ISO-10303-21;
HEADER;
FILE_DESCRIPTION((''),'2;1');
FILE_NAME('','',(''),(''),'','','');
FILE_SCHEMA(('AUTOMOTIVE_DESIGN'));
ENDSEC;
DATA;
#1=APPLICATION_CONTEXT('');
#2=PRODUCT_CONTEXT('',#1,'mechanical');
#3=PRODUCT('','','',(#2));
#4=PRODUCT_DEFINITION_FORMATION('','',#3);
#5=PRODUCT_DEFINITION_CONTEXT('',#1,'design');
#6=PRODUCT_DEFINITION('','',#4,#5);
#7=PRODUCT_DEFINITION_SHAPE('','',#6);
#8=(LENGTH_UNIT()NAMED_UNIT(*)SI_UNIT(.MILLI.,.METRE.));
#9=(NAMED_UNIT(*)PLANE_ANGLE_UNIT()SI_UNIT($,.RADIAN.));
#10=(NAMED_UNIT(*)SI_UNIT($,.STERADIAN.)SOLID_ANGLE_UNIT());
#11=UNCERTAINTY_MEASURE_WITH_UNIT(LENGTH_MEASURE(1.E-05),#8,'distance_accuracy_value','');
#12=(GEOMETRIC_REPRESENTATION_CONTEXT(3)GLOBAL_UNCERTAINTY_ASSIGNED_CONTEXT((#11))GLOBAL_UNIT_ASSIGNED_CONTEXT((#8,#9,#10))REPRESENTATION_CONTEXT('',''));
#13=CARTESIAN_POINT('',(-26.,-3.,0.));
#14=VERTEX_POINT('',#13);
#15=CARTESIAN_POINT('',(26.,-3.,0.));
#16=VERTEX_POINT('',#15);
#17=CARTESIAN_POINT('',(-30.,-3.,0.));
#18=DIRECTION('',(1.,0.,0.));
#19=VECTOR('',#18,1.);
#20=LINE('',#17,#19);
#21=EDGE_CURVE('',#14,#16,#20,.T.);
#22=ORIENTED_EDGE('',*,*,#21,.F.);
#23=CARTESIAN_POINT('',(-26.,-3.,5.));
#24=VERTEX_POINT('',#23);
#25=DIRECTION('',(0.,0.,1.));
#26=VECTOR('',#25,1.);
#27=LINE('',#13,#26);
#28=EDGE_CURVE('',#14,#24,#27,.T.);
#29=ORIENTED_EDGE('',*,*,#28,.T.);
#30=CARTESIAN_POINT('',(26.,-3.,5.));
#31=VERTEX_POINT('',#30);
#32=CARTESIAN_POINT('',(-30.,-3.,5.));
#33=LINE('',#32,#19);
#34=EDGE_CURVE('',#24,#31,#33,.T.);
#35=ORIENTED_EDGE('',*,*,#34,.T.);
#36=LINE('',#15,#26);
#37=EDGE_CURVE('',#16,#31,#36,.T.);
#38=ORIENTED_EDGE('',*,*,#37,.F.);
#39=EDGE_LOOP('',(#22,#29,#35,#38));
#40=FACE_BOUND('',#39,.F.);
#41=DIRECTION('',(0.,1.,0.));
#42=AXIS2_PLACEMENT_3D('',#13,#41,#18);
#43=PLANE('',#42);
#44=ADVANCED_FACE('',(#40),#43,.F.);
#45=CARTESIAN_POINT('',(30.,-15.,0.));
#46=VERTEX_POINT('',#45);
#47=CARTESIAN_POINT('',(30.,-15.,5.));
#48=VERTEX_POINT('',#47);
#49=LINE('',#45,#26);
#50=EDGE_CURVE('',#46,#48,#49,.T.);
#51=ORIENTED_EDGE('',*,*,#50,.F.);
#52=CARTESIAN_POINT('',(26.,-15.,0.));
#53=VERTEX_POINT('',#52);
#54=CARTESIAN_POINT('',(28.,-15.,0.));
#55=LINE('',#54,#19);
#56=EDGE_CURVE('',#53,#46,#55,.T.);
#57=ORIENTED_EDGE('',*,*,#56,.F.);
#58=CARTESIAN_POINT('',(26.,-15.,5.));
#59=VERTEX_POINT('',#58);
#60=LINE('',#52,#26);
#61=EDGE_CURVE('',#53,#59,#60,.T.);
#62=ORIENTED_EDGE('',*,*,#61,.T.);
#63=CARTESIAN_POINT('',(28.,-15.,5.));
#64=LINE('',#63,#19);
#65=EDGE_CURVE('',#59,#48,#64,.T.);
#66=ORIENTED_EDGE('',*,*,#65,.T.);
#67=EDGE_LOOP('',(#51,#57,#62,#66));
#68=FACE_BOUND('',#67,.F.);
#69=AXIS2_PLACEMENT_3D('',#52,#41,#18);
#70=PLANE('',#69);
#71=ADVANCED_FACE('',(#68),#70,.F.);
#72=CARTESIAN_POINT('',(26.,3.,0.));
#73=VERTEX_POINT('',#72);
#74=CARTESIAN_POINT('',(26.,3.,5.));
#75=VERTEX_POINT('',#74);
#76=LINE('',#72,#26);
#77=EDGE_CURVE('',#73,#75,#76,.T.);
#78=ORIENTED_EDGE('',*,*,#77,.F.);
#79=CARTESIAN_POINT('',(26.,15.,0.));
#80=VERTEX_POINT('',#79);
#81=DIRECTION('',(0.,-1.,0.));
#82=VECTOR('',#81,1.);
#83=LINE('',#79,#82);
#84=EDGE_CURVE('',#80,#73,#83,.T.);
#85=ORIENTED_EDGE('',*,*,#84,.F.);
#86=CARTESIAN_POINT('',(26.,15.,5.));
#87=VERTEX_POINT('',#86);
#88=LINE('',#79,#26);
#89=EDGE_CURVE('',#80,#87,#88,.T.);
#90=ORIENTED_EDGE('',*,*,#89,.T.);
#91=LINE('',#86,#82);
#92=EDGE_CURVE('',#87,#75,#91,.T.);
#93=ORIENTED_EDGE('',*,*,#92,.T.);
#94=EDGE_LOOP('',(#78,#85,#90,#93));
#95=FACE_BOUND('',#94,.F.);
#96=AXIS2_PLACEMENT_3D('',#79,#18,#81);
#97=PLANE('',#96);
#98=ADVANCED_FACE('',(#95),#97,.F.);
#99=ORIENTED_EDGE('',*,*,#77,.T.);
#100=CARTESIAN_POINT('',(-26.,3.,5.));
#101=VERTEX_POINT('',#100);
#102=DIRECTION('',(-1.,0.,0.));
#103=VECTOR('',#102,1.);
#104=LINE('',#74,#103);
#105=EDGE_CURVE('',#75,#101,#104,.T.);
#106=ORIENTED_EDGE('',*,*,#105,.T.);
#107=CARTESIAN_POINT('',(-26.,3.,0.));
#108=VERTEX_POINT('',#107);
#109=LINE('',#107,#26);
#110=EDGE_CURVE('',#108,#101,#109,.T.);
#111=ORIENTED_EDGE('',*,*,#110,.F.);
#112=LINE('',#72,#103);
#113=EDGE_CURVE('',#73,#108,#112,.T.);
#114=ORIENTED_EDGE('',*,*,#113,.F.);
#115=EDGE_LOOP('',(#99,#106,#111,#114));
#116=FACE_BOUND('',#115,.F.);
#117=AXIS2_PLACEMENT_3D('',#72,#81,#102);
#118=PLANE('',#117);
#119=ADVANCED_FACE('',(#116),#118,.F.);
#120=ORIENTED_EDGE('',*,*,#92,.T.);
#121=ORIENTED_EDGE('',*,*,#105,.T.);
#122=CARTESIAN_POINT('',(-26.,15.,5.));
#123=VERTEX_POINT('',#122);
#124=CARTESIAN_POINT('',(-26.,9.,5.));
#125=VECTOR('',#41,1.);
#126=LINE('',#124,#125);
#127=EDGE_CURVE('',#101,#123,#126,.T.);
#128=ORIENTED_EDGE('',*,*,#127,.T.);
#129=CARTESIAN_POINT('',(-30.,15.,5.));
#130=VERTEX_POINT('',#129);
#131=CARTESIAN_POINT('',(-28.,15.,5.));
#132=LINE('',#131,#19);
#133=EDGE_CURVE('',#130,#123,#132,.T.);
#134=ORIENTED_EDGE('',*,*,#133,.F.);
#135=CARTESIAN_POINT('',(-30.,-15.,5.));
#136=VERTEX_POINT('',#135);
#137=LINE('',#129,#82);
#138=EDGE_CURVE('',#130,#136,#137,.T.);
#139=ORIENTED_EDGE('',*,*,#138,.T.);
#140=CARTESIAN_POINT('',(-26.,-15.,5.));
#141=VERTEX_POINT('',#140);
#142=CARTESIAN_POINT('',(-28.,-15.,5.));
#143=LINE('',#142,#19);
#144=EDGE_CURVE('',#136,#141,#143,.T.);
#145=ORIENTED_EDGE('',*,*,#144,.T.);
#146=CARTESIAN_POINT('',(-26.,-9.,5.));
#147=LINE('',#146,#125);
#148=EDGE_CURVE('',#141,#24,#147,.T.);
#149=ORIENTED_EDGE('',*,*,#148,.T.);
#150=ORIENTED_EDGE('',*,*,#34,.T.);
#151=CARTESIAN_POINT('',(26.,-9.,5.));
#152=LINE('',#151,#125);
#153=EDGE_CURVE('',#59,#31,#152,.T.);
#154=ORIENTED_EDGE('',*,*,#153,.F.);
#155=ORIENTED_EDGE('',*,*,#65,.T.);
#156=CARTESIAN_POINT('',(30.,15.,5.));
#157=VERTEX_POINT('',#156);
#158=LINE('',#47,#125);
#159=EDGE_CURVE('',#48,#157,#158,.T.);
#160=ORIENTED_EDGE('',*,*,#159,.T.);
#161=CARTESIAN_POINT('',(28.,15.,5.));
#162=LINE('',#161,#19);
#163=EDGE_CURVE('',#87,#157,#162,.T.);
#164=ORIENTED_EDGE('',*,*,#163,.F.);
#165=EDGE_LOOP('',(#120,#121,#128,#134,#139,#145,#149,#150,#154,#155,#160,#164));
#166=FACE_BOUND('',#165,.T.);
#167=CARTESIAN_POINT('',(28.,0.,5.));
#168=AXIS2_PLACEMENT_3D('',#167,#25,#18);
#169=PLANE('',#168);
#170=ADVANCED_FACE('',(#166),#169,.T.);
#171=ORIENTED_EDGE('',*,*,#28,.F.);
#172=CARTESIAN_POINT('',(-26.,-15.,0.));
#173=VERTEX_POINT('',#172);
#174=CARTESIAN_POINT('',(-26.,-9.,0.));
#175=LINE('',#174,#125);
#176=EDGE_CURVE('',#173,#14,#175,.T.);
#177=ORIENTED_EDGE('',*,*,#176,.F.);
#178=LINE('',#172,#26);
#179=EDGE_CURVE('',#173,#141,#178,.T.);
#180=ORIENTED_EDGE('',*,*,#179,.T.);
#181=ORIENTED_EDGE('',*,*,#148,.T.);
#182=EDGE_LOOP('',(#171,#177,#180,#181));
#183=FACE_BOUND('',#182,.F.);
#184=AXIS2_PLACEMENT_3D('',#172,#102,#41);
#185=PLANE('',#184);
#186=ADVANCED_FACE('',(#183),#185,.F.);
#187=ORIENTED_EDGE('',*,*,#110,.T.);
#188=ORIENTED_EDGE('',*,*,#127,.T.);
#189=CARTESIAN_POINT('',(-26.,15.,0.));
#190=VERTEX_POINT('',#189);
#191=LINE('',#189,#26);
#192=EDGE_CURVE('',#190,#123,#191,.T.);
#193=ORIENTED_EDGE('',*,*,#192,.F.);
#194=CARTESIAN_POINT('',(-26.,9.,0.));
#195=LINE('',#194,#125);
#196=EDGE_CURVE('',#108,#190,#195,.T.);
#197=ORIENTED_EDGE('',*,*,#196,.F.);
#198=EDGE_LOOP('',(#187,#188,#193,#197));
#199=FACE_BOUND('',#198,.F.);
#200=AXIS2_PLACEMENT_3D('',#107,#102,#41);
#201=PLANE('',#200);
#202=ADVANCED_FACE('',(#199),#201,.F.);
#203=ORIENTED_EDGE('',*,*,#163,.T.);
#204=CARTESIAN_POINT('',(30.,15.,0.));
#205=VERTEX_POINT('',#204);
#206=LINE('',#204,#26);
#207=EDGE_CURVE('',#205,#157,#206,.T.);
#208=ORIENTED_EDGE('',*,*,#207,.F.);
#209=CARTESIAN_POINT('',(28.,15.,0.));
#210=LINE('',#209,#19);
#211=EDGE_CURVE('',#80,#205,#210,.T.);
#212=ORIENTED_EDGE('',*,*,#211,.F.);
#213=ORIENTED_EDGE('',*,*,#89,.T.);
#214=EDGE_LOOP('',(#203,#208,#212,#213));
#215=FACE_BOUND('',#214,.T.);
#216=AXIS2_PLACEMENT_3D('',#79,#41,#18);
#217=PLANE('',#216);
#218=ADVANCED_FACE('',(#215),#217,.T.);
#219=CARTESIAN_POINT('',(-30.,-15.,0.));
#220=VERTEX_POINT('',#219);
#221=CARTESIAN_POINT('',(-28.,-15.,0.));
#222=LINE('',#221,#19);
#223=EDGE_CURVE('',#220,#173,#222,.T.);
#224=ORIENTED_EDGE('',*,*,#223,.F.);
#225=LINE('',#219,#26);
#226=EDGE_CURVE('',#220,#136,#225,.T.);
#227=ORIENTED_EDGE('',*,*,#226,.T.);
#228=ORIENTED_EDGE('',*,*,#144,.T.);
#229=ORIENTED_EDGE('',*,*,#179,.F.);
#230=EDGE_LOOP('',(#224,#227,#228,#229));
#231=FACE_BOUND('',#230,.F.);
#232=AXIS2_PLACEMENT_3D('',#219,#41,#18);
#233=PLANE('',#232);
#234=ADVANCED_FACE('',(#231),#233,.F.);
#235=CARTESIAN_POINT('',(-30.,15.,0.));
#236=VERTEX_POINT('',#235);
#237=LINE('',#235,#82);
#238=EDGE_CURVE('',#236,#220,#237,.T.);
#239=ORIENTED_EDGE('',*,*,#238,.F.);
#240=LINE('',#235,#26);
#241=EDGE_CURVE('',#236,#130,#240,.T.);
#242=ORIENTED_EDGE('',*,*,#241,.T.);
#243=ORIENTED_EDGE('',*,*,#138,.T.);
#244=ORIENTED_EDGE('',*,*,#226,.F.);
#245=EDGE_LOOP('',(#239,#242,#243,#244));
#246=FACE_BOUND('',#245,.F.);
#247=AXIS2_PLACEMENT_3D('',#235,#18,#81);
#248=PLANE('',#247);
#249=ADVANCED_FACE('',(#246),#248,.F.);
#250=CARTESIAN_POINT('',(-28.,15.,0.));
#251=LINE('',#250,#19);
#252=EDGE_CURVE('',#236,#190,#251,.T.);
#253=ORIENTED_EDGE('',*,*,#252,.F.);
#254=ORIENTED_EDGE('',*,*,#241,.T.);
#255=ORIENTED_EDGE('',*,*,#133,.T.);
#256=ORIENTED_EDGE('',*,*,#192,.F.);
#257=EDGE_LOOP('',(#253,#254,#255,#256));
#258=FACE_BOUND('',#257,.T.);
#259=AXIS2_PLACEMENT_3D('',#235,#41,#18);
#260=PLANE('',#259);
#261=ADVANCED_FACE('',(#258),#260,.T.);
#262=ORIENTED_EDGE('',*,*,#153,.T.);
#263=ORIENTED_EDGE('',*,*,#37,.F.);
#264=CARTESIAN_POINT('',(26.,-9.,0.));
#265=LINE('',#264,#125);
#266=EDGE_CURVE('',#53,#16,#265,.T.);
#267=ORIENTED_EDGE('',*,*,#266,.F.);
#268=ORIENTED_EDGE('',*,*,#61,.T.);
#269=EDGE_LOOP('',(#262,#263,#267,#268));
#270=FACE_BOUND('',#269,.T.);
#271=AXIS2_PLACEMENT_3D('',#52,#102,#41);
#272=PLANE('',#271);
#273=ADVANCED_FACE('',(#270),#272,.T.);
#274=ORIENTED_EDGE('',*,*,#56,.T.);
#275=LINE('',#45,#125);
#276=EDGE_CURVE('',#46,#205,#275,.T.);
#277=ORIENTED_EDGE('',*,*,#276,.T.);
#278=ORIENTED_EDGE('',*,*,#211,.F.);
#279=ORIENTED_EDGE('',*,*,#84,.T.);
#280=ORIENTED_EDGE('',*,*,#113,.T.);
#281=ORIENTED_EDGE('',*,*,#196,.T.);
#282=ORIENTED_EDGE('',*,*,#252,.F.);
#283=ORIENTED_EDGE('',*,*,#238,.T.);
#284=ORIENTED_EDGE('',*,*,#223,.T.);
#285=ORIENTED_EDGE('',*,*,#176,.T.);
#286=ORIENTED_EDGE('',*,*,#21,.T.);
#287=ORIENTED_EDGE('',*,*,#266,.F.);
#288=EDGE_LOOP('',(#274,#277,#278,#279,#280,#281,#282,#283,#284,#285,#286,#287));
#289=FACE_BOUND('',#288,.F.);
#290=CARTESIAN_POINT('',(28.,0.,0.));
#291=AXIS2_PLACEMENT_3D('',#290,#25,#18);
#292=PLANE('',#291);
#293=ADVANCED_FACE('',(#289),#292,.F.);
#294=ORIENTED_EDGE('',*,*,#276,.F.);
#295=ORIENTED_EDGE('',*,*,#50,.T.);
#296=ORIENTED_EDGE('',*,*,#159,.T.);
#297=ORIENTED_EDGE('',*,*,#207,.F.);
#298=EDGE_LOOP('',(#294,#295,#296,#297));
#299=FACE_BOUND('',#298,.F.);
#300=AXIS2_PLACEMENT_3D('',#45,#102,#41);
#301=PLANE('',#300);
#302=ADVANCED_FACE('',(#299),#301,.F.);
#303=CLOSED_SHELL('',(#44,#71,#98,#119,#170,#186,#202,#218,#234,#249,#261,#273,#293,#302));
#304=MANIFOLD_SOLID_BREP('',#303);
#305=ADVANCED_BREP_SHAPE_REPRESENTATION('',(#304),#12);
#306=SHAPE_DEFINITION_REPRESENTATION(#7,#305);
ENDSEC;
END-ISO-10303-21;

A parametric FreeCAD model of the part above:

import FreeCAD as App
import Part
import Sketcher
Q = App.Units.Quantity


def add_polygon(sketch, points):
    """Adds a closed chain of lines whose ends are joined by coincident constraints."""
    first, n = sketch.GeometryCount, len(points)
    for a, b in zip(points, points[1:] + points[:1]):
        sketch.addGeometry(Part.LineSegment(App.Vector(*a, 0), App.Vector(*b, 0)), False)
    for i in range(n):
        sketch.addConstraint(Sketcher.Constraint("Coincident", first + i, 2, first + (i + 1) % n, 1))

doc = App.newDocument("Part")
params = doc.addObject("Spreadsheet::Sheet", "Params")
for row, (alias, value) in enumerate([
    ("sketch1_width", "4 mm"),
    ("sketch1_width2", "52 mm"),
    ("sketch1_height", "12 mm"),
    ("sketch1_height2", "30 mm"),
    ("pad1_length", "5 mm"),
], start=1):
    params.set(f"A{row}", alias)
    params.set(f"B{row}", "=" + value)
    params.setAlias(f"B{row}", alias)

body = doc.addObject("PartDesign::Body", "Body")

# Sketch on XY plane
sketch1 = body.newObject("Sketcher::SketchObject", "Sketch")
sketch1.AttachmentSupport = (doc.getObject("XY_Plane"), [""])
sketch1.MapMode = "FlatFace"
add_polygon(sketch1, [(30, 15), (26, 15), (26, 3), (-26, 3), (-26, 15), (-30, 15), (-30, -15), (-26, -15), (-26, -3), (26, -3), (26, -15), (30, -15)])  # lines 0-11
sketch1.addConstraint([
    Sketcher.Constraint("Horizontal", 0),
    Sketcher.Constraint("Vertical", 1),
    Sketcher.Constraint("Horizontal", 2),
    Sketcher.Constraint("Vertical", 3),
    Sketcher.Constraint("Horizontal", 4),
    Sketcher.Constraint("Vertical", 5),
    Sketcher.Constraint("Horizontal", 6),
    Sketcher.Constraint("Vertical", 7),
    Sketcher.Constraint("Horizontal", 8),
    Sketcher.Constraint("Vertical", 9),
    Sketcher.Constraint("Horizontal", 10),
    Sketcher.Constraint("Vertical", 11),
    Sketcher.Constraint("Symmetric", 0, 2, 6, 2, -1, 1),
    Sketcher.Constraint("Symmetric", 2, 2, 8, 2, -1, 1),
    Sketcher.Constraint("Symmetric", 4, 2, 10, 2, -1, 1),
    Sketcher.Constraint("Symmetric", 0, 2, 3, 2, -2),
    Sketcher.Constraint("DistanceX", 0, 2, 0, 1, Q("4 mm")),
    Sketcher.Constraint("DistanceX", 2, 2, 2, 1, Q("52 mm")),
    Sketcher.Constraint("DistanceY", 1, 2, 1, 1, Q("12 mm")),
    Sketcher.Constraint("DistanceY", 5, 2, 5, 1, Q("30 mm")),
])
sketch1.setExpression("Constraints[28]", "Params.sketch1_width")
sketch1.setExpression("Constraints[29]", "Params.sketch1_width2")
sketch1.setExpression("Constraints[30]", "Params.sketch1_height")
sketch1.setExpression("Constraints[31]", "Params.sketch1_height2")
pad1 = body.newObject("PartDesign::Pad", "Pad")
pad1.Profile = sketch1
pad1.setExpression("Length", "Params.pad1_length")

doc.recompute()
